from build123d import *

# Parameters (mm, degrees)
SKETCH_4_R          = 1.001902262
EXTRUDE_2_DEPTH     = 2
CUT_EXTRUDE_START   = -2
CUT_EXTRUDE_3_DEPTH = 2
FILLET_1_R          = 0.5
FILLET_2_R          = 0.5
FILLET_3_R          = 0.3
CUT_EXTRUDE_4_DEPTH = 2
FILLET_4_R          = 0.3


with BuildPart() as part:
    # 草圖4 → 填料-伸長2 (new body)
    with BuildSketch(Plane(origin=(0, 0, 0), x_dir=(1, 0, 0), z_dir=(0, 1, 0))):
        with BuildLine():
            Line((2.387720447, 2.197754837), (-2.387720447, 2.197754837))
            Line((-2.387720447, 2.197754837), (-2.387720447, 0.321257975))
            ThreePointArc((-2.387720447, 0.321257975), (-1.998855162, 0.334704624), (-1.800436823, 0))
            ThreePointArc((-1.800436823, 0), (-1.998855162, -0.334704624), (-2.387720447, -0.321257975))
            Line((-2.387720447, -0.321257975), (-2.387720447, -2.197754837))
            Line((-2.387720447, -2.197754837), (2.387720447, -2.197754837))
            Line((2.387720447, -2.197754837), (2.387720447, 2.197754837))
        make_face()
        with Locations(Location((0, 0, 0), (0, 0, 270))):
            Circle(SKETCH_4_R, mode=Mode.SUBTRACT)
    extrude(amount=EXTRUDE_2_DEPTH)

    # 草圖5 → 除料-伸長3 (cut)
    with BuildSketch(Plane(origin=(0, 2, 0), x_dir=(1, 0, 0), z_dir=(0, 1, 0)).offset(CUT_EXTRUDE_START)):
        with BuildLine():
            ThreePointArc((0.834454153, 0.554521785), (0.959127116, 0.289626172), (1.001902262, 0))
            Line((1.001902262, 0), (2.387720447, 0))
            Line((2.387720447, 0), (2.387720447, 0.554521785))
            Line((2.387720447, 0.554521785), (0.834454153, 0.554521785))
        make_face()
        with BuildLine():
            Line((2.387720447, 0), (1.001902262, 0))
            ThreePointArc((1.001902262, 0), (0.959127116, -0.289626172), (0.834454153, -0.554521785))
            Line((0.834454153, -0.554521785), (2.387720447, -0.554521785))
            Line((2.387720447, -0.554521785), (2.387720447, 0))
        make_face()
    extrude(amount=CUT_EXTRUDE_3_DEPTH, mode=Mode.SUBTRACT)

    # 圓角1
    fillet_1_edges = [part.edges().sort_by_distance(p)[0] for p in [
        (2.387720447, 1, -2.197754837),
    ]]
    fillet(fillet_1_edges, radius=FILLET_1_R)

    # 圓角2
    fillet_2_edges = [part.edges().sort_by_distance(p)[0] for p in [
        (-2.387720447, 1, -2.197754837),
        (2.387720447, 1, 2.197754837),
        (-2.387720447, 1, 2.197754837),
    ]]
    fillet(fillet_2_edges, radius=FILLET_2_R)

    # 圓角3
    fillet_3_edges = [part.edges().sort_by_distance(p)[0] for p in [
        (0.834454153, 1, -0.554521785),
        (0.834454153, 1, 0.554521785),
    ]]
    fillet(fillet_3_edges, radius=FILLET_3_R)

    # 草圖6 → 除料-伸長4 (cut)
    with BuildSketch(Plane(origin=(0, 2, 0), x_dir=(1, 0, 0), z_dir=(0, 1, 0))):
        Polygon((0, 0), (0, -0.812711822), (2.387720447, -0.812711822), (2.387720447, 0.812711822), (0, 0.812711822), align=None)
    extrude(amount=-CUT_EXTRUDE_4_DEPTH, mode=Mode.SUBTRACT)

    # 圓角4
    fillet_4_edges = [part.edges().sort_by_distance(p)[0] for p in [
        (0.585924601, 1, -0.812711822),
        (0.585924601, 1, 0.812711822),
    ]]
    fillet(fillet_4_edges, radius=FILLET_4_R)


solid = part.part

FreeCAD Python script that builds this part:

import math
import FreeCAD as App
import Part
import Sketcher
Q = App.Units.Quantity


def edges_at(feature, points):
    """Names of the edges that pass closest to the given points."""
    edges = feature.Shape.Edges
    near = lambda p: min(range(len(edges)), key=lambda i: edges[i].distToShape(Part.Vertex(*p))[0])
    return sorted({f"Edge{near(p) + 1}" for p in points})

doc = App.newDocument("Part")
body = doc.addObject("PartDesign::Body", "Body")

sketch1 = body.newObject("Sketcher::SketchObject", "Sketch")
sketch1.AttachmentSupport = (doc.getObject("XZ_Plane"), [""])
sketch1.MapMode = "FlatFace"
sketch1.addGeometry(Part.LineSegment(App.Vector(2.39, -2.2, 0), App.Vector(-2.39, -2.2, 0)), False)
sketch1.addGeometry(Part.LineSegment(App.Vector(-2.39, -2.2, 0), App.Vector(-2.39, -0.32, 0)), False)
sketch1.addGeometry(Part.ArcOfCircle(Part.Circle(App.Vector(-2.18, 0, 0), App.Vector(0, 0, 1), 0.38), math.radians(-123), math.radians(0)), False)
sketch1.addGeometry(Part.ArcOfCircle(Part.Circle(App.Vector(-2.18, 0, 0), App.Vector(0, 0, 1), 0.38), math.radians(0), math.radians(123)), False)
sketch1.addGeometry(Part.LineSegment(App.Vector(-2.39, 0.32, 0), App.Vector(-2.39, 2.2, 0)), False)
sketch1.addGeometry(Part.LineSegment(App.Vector(-2.39, 2.2, 0), App.Vector(2.39, 2.2, 0)), False)
sketch1.addGeometry(Part.LineSegment(App.Vector(2.39, 2.2, 0), App.Vector(2.39, -2.2, 0)), False)
sketch1.addGeometry(Part.Circle(App.Vector(0, 0, 0), App.Vector(0, 0, 1), 1), False)
sketch1.addConstraint(Sketcher.Constraint("Coincident", 0, 2, 1, 1))
sketch1.addConstraint(Sketcher.Constraint("Coincident", 1, 2, 2, 1))
sketch1.addConstraint(Sketcher.Constraint("Tangent", 2, 2, 3, 1))
sketch1.addConstraint(Sketcher.Constraint("Coincident", 3, 2, 4, 1))
sketch1.addConstraint(Sketcher.Constraint("Coincident", 4, 2, 5, 1))
sketch1.addConstraint(Sketcher.Constraint("Coincident", 5, 2, 6, 1))
sketch1.addConstraint(Sketcher.Constraint("Coincident", 6, 2, 0, 1))
sketch1.addConstraint(Sketcher.Constraint("Horizontal", 0))
sketch1.addConstraint(Sketcher.Constraint("Vertical", 1))
sketch1.addConstraint(Sketcher.Constraint("Vertical", 4))
sketch1.addConstraint(Sketcher.Constraint("Horizontal", 5))
sketch1.addConstraint(Sketcher.Constraint("Vertical", 6))
sketch1.addConstraint(Sketcher.Constraint("Coincident", 7, 3, -1, 1))
sketch1.addConstraint(Sketcher.Constraint("Equal", 2, 3))
sketch1.addConstraint(Sketcher.Constraint("Symmetric", 0, 2, 5, 2, -1, 1))
sketch1.addConstraint(Sketcher.Constraint("Symmetric", 1, 2, 3, 2, -1))
sketch1.addConstraint(Sketcher.Constraint("PointOnObject", 2, 2, -1))
sketch1.addConstraint(Sketcher.Constraint("Radius", 2, Q("0.38151 mm")))
sketch1.addConstraint(Sketcher.Constraint("Diameter", 7, Q("2.003805 mm")))
sketch1.addConstraint(Sketcher.Constraint("DistanceX", 0, 2, 0, 1, Q("4.775441 mm")))
sketch1.addConstraint(Sketcher.Constraint("DistanceY", 6, 2, 6, 1, Q("4.39551 mm")))
sketch1.addConstraint(Sketcher.Constraint("DistanceY", 1, 1, 1, 2, Q("1.876497 mm")))
pad1 = body.newObject("PartDesign::Pad", "Pad")
pad1.Profile = sketch1
pad1.Length = 2
pad1.Reversed = True

sketch2 = body.newObject("Sketcher::SketchObject", "Sketch001")
sketch2.AttachmentSupport = (doc.getObject("XZ_Plane"), [""])
sketch2.MapMode = "FlatFace"
sketch2.addGeometry(Part.ArcOfCircle(Part.Circle(App.Vector(0, 0, 0), App.Vector(0, 0, 1), 1), math.radians(-34), math.radians(0)), False)
sketch2.addGeometry(Part.ArcOfCircle(Part.Circle(App.Vector(0, 0, 0), App.Vector(0, 0, 1), 1), math.radians(0), math.radians(34)), False)
sketch2.addGeometry(Part.LineSegment(App.Vector(0.8, 0.6, 0), App.Vector(2.4, 0.6, 0)), False)
sketch2.addGeometry(Part.LineSegment(App.Vector(2.4, 0.6, 0), App.Vector(2.4, -0.6, 0)), False)
sketch2.addGeometry(Part.LineSegment(App.Vector(2.4, -0.6, 0), App.Vector(0.8, -0.6, 0)), False)
sketch2.addConstraint(Sketcher.Constraint("Tangent", 0, 2, 1, 1))
sketch2.addConstraint(Sketcher.Constraint("Coincident", 1, 2, 2, 1))
sketch2.addConstraint(Sketcher.Constraint("Coincident", 2, 2, 3, 1))
sketch2.addConstraint(Sketcher.Constraint("Coincident", 3, 2, 4, 1))
sketch2.addConstraint(Sketcher.Constraint("Coincident", 4, 2, 0, 1))
sketch2.addConstraint(Sketcher.Constraint("Horizontal", 2))
sketch2.addConstraint(Sketcher.Constraint("Vertical", 3))
sketch2.addConstraint(Sketcher.Constraint("Horizontal", 4))
sketch2.addConstraint(Sketcher.Constraint("Coincident", 0, 3, -1, 1))
sketch2.addConstraint(Sketcher.Constraint("Equal", 0, 1))
sketch2.addConstraint(Sketcher.Constraint("PointOnObject", 0, 2, -1))
sketch2.addConstraint(Sketcher.Constraint("Vertical", 1, 2, 4, 2))
sketch2.addConstraint(Sketcher.Constraint("Radius", 0, Q("1.001902 mm")))
sketch2.addConstraint(Sketcher.Constraint("DistanceX", 2, 1, 2, 2, Q("1.553266 mm")))
sketch2.addConstraint(Sketcher.Constraint("DistanceY", 3, 2, 3, 1, Q("1.109044 mm")))
pocket1 = body.newObject("PartDesign::Pocket", "Pocket")
pocket1.Profile = sketch2
pocket1.Length = 2
doc.recompute()

fillet = body.newObject("PartDesign::Fillet", "Fillet")
fillet.Base = (pocket1, edges_at(pocket1, [(2.388, 1, -2.198)]))
fillet.Radius = 0.5
doc.recompute()

fillet2 = body.newObject("PartDesign::Fillet", "Fillet001")
fillet2.Base = (fillet, edges_at(fillet, [(-2.388, 1, -2.198), (2.388, 1, 2.198), (-2.388, 1, 2.198)]))
fillet2.Radius = 0.5
doc.recompute()

fillet3 = body.newObject("PartDesign::Fillet", "Fillet002")
fillet3.Base = (fillet2, edges_at(fillet2, [(0.834, 1, -0.555), (0.834, 1, 0.555)]))
fillet3.Radius = 0.3

sketch3 = body.newObject("Sketcher::SketchObject", "Sketch002")
sketch3.AttachmentSupport = (doc.getObject("XZ_Plane"), [""])
sketch3.MapMode = "FlatFace"
sketch3.AttachmentOffset = App.Placement(App.Vector(0, 0, -2), App.Rotation())
sketch3.addGeometry(Part.LineSegment(App.Vector(0, 0.8, 0), App.Vector(2.4, 0.8, 0)), False)
sketch3.addGeometry(Part.LineSegment(App.Vector(2.4, 0.8, 0), App.Vector(2.4, -0.8, 0)), False)
sketch3.addGeometry(Part.LineSegment(App.Vector(2.4, -0.8, 0), App.Vector(0, -0.8, 0)), False)
sketch3.addGeometry(Part.LineSegment(App.Vector(0, -0.8, 0), App.Vector(0, 0.8, 0)), False)
sketch3.addConstraint(Sketcher.Constraint("Coincident", 0, 2, 1, 1))
sketch3.addConstraint(Sketcher.Constraint("Coincident", 1, 2, 2, 1))
sketch3.addConstraint(Sketcher.Constraint("Coincident", 2, 2, 3, 1))
sketch3.addConstraint(Sketcher.Constraint("Coincident", 3, 2, 0, 1))
sketch3.addConstraint(Sketcher.Constraint("Horizontal", 0))
sketch3.addConstraint(Sketcher.Constraint("Vertical", 1))
sketch3.addConstraint(Sketcher.Constraint("Horizontal", 2))
sketch3.addConstraint(Sketcher.Constraint("Vertical", 3))
sketch3.addConstraint(Sketcher.Constraint("Symmetric", 2, 2, 3, 2, -1, 1))
sketch3.addConstraint(Sketcher.Constraint("DistanceX", 0, 1, 0, 2, Q("2.38772 mm")))
sketch3.addConstraint(Sketcher.Constraint("DistanceY", 1, 2, 1, 1, Q("1.625424 mm")))
pocket2 = body.newObject("PartDesign::Pocket", "Pocket001")
pocket2.Profile = sketch3
pocket2.Length = 2
pocket2.Reversed = True
doc.recompute()

fillet4 = body.newObject("PartDesign::Fillet", "Fillet003")
fillet4.Base = (pocket2, edges_at(pocket2, [(0.586, 1, -0.813), (0.586, 1, 0.813)]))
fillet4.Radius = 0.3

doc.recompute()
